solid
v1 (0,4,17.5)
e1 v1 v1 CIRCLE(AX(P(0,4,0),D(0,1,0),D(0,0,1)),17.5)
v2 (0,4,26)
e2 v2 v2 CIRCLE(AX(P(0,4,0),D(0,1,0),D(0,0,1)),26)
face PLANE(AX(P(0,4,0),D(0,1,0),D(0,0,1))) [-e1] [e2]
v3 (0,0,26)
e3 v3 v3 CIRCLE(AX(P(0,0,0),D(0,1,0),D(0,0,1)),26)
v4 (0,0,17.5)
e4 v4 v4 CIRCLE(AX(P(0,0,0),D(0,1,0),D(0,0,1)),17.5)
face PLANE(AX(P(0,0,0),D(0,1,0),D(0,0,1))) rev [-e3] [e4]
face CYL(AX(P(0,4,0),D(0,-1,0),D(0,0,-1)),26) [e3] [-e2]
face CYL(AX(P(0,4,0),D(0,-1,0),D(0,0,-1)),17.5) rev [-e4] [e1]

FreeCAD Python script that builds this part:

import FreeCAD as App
import Part
import Sketcher
Q = App.Units.Quantity

doc = App.newDocument("Part")
body = doc.addObject("PartDesign::Body", "Body")

sketch1 = body.newObject("Sketcher::SketchObject", "Sketch")
sketch1.AttachmentSupport = (doc.getObject("XZ_Plane"), [""])
sketch1.MapMode = "FlatFace"
sketch1.addGeometry(Part.Circle(App.Vector(0, 0, 0), App.Vector(0, 0, 1), 26), False)
sketch1.addGeometry(Part.Circle(App.Vector(0, 0, 0), App.Vector(0, 0, 1), 18), False)
sketch1.addConstraint(Sketcher.Constraint("Coincident", 0, 3, -1, 1))
sketch1.addConstraint(Sketcher.Constraint("Coincident", 1, 3, -1, 1))
sketch1.addConstraint(Sketcher.Constraint("Diameter", 0, Q("52 mm")))
sketch1.addConstraint(Sketcher.Constraint("Diameter", 1, Q("35 mm")))
pad1 = body.newObject("PartDesign::Pad", "Pad")
pad1.Profile = sketch1
pad1.Length = 4
pad1.Reversed = True

doc.recompute()
